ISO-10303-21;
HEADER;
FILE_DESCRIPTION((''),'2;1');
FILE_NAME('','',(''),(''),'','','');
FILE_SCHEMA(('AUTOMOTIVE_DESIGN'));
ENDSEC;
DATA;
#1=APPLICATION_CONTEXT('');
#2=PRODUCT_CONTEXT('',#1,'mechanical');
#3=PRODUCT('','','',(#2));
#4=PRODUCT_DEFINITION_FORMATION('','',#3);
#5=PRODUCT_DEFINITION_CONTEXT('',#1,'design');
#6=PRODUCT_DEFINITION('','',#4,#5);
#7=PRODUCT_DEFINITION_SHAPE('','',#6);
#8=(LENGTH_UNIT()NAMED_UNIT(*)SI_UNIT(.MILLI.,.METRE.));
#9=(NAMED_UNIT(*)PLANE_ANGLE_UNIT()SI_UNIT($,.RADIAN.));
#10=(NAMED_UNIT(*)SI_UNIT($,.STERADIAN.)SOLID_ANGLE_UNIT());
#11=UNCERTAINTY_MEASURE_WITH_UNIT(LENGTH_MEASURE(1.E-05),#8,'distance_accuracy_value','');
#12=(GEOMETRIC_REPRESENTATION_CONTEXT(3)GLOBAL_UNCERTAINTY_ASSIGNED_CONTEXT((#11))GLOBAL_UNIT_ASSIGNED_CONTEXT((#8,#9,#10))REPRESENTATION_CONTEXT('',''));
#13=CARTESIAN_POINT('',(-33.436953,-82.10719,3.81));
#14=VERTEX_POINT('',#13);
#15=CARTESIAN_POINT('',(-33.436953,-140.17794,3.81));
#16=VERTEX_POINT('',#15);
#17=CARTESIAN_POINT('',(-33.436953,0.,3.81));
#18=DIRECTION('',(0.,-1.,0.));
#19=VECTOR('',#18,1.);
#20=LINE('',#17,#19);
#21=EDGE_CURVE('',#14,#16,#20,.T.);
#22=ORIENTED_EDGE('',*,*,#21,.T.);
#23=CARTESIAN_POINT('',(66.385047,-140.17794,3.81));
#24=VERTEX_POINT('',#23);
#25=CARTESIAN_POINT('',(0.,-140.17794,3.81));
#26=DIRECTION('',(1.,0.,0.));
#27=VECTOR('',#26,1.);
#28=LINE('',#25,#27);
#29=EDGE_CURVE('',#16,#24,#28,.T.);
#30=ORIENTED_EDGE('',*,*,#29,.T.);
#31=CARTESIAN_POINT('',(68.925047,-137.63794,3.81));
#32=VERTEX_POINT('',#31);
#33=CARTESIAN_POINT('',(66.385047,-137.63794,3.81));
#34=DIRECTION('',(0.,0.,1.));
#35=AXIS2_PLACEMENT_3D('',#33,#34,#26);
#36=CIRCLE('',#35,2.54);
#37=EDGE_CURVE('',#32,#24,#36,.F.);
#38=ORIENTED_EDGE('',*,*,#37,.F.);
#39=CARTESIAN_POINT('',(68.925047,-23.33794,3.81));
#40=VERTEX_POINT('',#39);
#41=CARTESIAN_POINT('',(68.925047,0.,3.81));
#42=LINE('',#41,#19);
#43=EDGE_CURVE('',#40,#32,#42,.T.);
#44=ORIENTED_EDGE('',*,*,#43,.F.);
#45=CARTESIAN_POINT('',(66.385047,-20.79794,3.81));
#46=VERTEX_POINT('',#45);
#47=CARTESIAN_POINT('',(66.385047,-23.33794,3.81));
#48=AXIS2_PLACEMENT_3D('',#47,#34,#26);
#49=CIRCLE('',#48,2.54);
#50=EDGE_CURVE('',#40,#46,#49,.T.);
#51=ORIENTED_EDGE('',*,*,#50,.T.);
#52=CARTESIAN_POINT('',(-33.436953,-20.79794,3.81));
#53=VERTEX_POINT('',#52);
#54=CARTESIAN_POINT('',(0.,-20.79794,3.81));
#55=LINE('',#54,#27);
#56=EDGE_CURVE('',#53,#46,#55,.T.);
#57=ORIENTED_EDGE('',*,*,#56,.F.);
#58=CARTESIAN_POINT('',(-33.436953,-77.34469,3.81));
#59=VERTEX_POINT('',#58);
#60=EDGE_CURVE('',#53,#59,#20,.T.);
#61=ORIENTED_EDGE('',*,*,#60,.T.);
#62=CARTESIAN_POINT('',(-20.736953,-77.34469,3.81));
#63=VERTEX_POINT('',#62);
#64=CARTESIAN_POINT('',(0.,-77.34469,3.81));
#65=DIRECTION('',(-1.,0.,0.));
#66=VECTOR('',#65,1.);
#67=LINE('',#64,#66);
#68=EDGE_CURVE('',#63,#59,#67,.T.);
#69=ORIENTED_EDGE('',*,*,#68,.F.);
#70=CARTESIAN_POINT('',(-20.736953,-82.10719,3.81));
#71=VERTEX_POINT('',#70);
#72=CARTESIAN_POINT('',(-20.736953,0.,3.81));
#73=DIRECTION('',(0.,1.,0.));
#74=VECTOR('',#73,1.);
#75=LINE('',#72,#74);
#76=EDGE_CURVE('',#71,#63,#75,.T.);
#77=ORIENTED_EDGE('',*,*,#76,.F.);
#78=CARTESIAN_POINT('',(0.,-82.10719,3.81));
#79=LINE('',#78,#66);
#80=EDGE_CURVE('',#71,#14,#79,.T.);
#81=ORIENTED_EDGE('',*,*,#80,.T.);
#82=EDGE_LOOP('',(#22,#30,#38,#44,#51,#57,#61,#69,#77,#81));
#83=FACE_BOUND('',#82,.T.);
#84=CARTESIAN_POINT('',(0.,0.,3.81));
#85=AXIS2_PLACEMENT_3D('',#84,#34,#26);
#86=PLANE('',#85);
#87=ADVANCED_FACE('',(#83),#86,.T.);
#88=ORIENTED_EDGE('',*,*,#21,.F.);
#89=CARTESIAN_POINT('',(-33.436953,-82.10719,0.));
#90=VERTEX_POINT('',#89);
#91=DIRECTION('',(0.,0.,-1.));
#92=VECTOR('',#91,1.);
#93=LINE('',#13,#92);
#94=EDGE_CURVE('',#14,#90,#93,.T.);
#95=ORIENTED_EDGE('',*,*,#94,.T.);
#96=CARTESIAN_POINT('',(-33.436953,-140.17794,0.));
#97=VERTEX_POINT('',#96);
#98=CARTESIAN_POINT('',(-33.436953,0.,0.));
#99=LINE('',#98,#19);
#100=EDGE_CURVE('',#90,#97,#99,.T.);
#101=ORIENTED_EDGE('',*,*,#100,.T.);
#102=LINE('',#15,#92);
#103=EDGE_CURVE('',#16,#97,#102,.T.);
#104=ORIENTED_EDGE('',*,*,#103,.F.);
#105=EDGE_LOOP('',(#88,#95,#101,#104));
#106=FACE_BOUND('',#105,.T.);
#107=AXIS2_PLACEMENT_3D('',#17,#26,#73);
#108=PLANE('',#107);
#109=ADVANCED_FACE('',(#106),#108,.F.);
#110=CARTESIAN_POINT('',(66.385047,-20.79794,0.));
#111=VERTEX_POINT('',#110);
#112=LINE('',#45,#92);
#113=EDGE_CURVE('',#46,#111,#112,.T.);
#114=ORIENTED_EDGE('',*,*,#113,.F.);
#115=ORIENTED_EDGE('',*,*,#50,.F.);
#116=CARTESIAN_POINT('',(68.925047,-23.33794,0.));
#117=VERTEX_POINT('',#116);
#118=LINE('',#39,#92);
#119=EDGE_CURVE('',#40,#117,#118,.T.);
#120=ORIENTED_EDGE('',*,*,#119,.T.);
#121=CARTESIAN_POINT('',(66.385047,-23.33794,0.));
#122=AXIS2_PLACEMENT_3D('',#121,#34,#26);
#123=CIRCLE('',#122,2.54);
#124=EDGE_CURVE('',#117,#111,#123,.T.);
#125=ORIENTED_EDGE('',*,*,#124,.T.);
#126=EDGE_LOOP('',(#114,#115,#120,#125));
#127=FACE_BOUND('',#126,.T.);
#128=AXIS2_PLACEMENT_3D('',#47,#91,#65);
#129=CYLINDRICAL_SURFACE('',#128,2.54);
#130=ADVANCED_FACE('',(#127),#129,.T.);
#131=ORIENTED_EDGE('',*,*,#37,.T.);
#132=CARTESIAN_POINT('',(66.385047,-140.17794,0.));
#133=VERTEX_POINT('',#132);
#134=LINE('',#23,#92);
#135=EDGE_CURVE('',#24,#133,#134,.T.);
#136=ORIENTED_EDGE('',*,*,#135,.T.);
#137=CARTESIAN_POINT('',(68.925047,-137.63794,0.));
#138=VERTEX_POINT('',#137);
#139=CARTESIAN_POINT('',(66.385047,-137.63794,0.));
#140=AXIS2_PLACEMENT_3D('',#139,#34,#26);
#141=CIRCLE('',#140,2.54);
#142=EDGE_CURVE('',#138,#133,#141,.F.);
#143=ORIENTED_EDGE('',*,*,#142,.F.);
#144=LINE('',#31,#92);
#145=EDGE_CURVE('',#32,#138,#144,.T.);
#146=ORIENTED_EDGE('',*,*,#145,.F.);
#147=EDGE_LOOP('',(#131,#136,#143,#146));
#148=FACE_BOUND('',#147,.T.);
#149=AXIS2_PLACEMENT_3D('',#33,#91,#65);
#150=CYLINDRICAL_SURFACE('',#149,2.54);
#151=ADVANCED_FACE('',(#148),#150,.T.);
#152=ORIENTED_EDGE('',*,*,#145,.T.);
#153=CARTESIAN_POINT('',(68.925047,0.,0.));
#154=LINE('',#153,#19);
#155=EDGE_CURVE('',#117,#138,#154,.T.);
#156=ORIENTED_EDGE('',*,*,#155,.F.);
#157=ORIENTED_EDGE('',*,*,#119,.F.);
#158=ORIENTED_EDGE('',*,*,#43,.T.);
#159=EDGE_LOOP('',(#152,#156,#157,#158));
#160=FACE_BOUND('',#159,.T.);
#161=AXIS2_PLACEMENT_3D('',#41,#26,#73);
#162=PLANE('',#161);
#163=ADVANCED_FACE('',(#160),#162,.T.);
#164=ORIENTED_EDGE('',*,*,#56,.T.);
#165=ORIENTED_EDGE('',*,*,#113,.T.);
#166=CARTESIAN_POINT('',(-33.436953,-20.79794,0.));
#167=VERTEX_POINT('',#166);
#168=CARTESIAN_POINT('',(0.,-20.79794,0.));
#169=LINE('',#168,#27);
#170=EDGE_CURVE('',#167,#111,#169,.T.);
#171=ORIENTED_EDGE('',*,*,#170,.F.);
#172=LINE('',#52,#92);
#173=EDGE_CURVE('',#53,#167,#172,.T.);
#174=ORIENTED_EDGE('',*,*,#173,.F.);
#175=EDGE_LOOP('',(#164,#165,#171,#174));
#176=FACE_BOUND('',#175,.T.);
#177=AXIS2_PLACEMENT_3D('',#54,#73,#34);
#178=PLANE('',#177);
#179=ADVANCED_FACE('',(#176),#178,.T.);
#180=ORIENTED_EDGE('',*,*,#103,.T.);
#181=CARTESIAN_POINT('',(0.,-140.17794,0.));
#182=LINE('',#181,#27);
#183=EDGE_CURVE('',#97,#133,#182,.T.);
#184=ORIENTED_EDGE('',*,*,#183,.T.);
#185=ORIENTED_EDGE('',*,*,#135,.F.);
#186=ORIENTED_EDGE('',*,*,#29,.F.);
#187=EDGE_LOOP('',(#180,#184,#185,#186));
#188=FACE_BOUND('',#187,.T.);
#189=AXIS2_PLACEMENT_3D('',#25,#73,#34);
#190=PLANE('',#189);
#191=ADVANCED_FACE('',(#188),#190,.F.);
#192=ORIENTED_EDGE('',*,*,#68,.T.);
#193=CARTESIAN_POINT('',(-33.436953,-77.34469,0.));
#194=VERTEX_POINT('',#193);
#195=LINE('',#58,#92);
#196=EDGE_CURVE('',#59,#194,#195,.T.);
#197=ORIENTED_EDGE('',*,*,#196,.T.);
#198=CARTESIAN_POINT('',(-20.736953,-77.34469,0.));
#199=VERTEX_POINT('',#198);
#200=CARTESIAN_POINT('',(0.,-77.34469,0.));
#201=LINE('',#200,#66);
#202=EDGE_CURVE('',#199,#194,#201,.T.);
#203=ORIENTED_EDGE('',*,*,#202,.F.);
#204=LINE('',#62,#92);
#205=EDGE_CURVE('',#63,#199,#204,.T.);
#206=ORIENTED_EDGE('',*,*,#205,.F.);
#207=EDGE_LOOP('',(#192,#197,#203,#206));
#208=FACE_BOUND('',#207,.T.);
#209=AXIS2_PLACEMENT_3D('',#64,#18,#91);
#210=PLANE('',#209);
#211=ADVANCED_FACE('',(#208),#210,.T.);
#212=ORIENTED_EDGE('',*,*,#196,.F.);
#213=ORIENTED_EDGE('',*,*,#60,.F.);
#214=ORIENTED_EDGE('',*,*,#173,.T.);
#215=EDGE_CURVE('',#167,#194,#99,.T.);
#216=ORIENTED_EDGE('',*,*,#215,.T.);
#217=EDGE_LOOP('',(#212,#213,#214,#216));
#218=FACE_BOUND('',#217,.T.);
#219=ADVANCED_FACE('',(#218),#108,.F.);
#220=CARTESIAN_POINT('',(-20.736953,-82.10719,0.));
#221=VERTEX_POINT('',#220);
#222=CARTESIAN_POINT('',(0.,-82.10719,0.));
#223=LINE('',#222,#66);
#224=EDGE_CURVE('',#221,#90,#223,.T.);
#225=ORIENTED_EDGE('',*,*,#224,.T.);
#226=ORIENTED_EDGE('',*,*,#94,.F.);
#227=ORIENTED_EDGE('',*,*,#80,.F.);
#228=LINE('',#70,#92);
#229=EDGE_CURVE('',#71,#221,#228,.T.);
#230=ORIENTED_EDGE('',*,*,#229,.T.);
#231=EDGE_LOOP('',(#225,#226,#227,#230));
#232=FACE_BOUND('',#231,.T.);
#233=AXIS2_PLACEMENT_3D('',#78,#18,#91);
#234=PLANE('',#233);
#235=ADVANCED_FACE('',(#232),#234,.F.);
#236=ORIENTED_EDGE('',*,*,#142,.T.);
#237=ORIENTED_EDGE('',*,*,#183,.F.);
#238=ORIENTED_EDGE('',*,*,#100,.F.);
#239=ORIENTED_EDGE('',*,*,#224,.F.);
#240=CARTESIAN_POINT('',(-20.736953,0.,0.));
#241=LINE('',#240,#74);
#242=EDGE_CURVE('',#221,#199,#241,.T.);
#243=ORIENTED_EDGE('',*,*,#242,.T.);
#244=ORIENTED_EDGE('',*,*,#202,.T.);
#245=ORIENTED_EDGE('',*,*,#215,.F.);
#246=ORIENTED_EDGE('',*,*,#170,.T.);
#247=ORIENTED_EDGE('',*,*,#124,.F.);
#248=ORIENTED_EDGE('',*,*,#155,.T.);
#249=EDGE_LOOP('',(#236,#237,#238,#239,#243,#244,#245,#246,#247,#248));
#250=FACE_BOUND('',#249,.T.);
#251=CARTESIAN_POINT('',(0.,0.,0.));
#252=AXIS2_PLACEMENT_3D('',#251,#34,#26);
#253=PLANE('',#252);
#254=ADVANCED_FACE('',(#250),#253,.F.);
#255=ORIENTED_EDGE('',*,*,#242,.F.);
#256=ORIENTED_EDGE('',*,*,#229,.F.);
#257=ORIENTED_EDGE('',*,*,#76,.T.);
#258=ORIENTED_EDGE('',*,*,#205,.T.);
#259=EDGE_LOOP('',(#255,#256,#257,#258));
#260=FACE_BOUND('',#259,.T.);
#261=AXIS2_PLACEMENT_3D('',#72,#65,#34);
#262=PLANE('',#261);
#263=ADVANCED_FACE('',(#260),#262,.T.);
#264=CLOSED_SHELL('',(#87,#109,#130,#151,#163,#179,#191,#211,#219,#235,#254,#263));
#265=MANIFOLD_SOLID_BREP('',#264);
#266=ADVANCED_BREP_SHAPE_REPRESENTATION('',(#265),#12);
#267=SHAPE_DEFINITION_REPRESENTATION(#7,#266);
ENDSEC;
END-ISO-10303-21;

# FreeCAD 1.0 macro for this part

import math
import FreeCAD as App
import Part
import Sketcher
Q = App.Units.Quantity

doc = App.newDocument("Part")
body = doc.addObject("PartDesign::Body", "Body")

# Sketch on XY plane
sketch1 = body.newObject("Sketcher::SketchObject", "Sketch")
sketch1.AttachmentSupport = (doc.getObject("XY_Plane"), [""])
sketch1.MapMode = "FlatFace"
sketch1.addGeometry(Part.LineSegment(App.Vector(66.4, -20.8, 0), App.Vector(-33.4, -20.8, 0)), False)
sketch1.addGeometry(Part.LineSegment(App.Vector(-33.4, -20.8, 0), App.Vector(-33.4, -77.3, 0)), False)
sketch1.addGeometry(Part.LineSegment(App.Vector(-33.4, -77.3, 0), App.Vector(-20.7, -77.3, 0)), False)
sketch1.addGeometry(Part.LineSegment(App.Vector(-20.7, -77.3, 0), App.Vector(-20.7, -82.1, 0)), False)
sketch1.addGeometry(Part.LineSegment(App.Vector(-20.7, -82.1, 0), App.Vector(-33.4, -82.1, 0)), False)
sketch1.addGeometry(Part.LineSegment(App.Vector(-33.4, -82.1, 0), App.Vector(-33.4, -140.2, 0)), False)
sketch1.addGeometry(Part.LineSegment(App.Vector(-33.4, -140.2, 0), App.Vector(66.4, -140.2, 0)), False)
sketch1.addGeometry(Part.ArcOfCircle(Part.Circle(App.Vector(66.4, -137.6, 0), App.Vector(0, 0, 1), 2.5), math.radians(-90), math.radians(0)), False)
sketch1.addGeometry(Part.LineSegment(App.Vector(68.9, -137.6, 0), App.Vector(68.9, -23.3, 0)), False)
sketch1.addGeometry(Part.ArcOfCircle(Part.Circle(App.Vector(66.4, -23.3, 0), App.Vector(0, 0, 1), 2.5), math.radians(0), math.radians(90)), False)
sketch1.addConstraint(Sketcher.Constraint("Coincident", 0, 2, 1, 1))
sketch1.addConstraint(Sketcher.Constraint("Coincident", 1, 2, 2, 1))
sketch1.addConstraint(Sketcher.Constraint("Coincident", 2, 2, 3, 1))
sketch1.addConstraint(Sketcher.Constraint("Coincident", 3, 2, 4, 1))
sketch1.addConstraint(Sketcher.Constraint("Coincident", 4, 2, 5, 1))
sketch1.addConstraint(Sketcher.Constraint("Coincident", 5, 2, 6, 1))
sketch1.addConstraint(Sketcher.Constraint("Tangent", 6, 2, 7, 1))
sketch1.addConstraint(Sketcher.Constraint("Tangent", 7, 2, 8, 1))
sketch1.addConstraint(Sketcher.Constraint("Tangent", 8, 2, 9, 1))
sketch1.addConstraint(Sketcher.Constraint("Tangent", 9, 2, 0, 1))
sketch1.addConstraint(Sketcher.Constraint("Horizontal", 0))
sketch1.addConstraint(Sketcher.Constraint("Vertical", 1))
sketch1.addConstraint(Sketcher.Constraint("Horizontal", 2))
sketch1.addConstraint(Sketcher.Constraint("Vertical", 3))
sketch1.addConstraint(Sketcher.Constraint("Horizontal", 4))
sketch1.addConstraint(Sketcher.Constraint("Vertical", 5))
sketch1.addConstraint(Sketcher.Constraint("Horizontal", 6))
sketch1.addConstraint(Sketcher.Constraint("Vertical", 8))
sketch1.addConstraint(Sketcher.Constraint("Equal", 7, 9))
sketch1.addConstraint(Sketcher.Constraint("Vertical", 1, 2, 4, 2))
sketch1.addConstraint(Sketcher.Constraint("Radius", 7, Q("0.1 in")))
sketch1.addConstraint(Sketcher.Constraint("DistanceX", 2, 1, 2, 2, Q("0.5 in")))
sketch1.addConstraint(Sketcher.Constraint("DistanceY", 8, 1, 8, 2, Q("4.5 in")))
sketch1.addConstraint(Sketcher.Constraint("DistanceX", 0, 2, 0, 1, Q("3.93 in")))
sketch1.addConstraint(Sketcher.Constraint("DistanceY", 3, 2, 3, 1, Q("0.1875 in")))
sketch1.addConstraint(Sketcher.Constraint("DistanceY", 1, 2, 1, 1, Q("56.54675 mm")))
sketch1.addConstraint(Sketcher.Constraint("DistanceY", 7, 3, -1, 1, Q("137.63794 mm")))
sketch1.addConstraint(Sketcher.Constraint("DistanceX", -1, 1, 7, 3, Q("66.385047 mm")))
pad1 = body.newObject("PartDesign::Pad", "Pad")
pad1.Profile = sketch1
pad1.Length = Q("0.15 in")

doc.recompute()
